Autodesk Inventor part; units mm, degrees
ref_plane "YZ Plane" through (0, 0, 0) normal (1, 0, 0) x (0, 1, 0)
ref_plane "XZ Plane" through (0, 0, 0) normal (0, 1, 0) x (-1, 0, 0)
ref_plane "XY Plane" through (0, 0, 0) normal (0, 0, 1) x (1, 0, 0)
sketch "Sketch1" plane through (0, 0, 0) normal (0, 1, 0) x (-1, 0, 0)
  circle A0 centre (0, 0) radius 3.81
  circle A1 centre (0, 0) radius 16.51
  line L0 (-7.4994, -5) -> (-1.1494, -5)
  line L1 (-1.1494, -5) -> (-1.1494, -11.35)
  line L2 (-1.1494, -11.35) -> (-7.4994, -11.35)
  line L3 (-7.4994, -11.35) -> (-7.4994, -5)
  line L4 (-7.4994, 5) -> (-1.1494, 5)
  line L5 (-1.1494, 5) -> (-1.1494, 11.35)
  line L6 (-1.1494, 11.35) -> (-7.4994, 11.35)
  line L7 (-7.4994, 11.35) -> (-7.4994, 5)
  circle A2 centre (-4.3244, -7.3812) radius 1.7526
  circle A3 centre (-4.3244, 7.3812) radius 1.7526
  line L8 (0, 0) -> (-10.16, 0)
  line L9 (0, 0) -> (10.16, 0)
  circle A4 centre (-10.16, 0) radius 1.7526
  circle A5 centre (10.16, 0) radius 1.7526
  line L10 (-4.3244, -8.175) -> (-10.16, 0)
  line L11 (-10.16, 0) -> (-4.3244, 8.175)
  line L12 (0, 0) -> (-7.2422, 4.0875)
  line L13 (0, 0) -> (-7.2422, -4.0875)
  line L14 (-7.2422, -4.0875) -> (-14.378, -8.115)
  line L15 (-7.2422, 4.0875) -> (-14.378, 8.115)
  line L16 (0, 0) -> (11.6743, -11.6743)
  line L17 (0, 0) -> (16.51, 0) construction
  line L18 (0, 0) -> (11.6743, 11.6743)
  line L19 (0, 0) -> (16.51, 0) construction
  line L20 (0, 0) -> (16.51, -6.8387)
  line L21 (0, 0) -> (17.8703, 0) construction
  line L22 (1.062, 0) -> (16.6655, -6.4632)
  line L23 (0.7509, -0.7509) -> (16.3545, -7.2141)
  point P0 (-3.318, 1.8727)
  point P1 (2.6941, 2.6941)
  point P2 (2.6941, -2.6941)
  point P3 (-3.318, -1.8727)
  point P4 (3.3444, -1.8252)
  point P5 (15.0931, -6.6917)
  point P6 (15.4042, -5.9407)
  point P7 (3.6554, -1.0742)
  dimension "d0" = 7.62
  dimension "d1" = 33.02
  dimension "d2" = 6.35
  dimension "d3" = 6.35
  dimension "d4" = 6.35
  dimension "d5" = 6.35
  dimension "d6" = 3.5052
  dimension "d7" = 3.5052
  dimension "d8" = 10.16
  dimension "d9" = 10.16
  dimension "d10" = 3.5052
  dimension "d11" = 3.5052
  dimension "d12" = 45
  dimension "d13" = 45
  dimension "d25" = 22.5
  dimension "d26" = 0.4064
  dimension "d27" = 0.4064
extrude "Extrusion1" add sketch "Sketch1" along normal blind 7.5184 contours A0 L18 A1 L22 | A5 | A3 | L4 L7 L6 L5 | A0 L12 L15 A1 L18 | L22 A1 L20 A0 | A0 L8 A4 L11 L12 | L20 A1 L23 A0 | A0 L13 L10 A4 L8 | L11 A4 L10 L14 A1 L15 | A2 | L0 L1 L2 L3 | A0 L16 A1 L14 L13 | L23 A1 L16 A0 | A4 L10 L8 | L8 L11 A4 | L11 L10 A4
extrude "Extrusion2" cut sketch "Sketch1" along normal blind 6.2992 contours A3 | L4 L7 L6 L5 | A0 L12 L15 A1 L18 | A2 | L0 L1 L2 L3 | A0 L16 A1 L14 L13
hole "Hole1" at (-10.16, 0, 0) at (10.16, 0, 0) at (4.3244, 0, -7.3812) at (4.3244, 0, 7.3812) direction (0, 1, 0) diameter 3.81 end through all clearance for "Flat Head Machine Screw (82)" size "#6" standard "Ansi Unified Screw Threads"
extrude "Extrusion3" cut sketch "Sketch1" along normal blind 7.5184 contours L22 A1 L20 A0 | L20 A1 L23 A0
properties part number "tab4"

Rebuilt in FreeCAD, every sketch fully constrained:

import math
import FreeCAD as App
import Part
import Sketcher
Q = App.Units.Quantity

doc = App.newDocument("Part")
params = doc.addObject("Spreadsheet::Sheet", "Params")
for row, (alias, value) in enumerate([
    ("sketch1_diameter", "1.3 in"),
    ("sketch1_diameter2", "0.3 in"),
    ("pad1_length", "0.296 in"),
    ("sketch2_radius", "0.15 in"),
    ("sketch2_radius2", "0.65 in"),
    ("pocket1_length", "0.248 in"),
    ("sketch3_diameter", "0.15 in"),
    ("hole_diameter", "0.15 in"),
    ("sketch4_radius", "0.15 in"),
    ("sketch4_radius2", "0.65 in"),
    ("pocket2_length", "0.296 in"),
], start=1):
    params.set(f"A{row}", alias)
    params.set(f"B{row}", "=" + value)
    params.setAlias(f"B{row}", alias)

body = doc.addObject("PartDesign::Body", "Body")

# Sketch on XZ plane
sketch1 = body.newObject("Sketcher::SketchObject", "Sketch")
sketch1.AttachmentSupport = (doc.getObject("XZ_Plane"), [""])
sketch1.MapMode = "FlatFace"
sketch1.addGeometry([
    Part.Circle(App.Vector(0, 0, 0), App.Vector(0, 0, 1), 16.51),
    Part.Circle(App.Vector(0, 0, 0), App.Vector(0, 0, 1), 3.81),
], False)
sketch1.addConstraint([
    Sketcher.Constraint("Coincident", 0, 3, -1, 1),
    Sketcher.Constraint("Coincident", 1, 3, -1, 1),
    Sketcher.Constraint("Diameter", 0, Q("1.3 in")),
    Sketcher.Constraint("Diameter", 1, Q("0.3 in")),
])
sketch1.setExpression("Constraints[2]", "Params.sketch1_diameter")
sketch1.setExpression("Constraints[3]", "Params.sketch1_diameter2")
pad1 = body.newObject("PartDesign::Pad", "Pad")
pad1.Profile = sketch1
pad1.setExpression("Length", "Params.pad1_length")
pad1.Reversed = True

# Sketch on XZ plane
sketch2 = body.newObject("Sketcher::SketchObject", "Sketch001")
sketch2.AttachmentSupport = (doc.getObject("XZ_Plane"), [""])
sketch2.MapMode = "FlatFace"
sketch2.addGeometry([
    Part.ArcOfCircle(Part.Circle(App.Vector(0, 0, 0), App.Vector(0, 0, 1), 3.81), math.radians(29.440397), math.radians(135)),  # 0
    Part.LineSegment(App.Vector(-2.694077, 2.694077, 0), App.Vector(-11.6743, 11.6743, 0)),  # 1
    Part.ArcOfCircle(Part.Circle(App.Vector(0, 0, 0), App.Vector(0, 0, 1), 16.51), math.radians(29.440554), math.radians(135)),  # 2
    Part.LineSegment(App.Vector(14.378, 8.115, 0), App.Vector(7.2422, 4.0875, 0)),  # 3
    Part.LineSegment(App.Vector(7.2422, 4.0875, 0), App.Vector(3.318005, 1.872683, 0)),  # 4
    Part.ArcOfCircle(Part.Circle(App.Vector(0, 0, 0), App.Vector(0, 0, 1), 3.81), math.radians(-135), math.radians(-29.440397)),  # 5
    Part.LineSegment(App.Vector(3.318005, -1.872683, 0), App.Vector(7.2422, -4.0875, 0)),  # 6
    Part.LineSegment(App.Vector(7.2422, -4.0875, 0), App.Vector(14.378, -8.115, 0)),  # 7
    Part.ArcOfCircle(Part.Circle(App.Vector(0, 0, 0), App.Vector(0, 0, 1), 16.51), math.radians(-135), math.radians(-29.440554)),  # 8
    Part.LineSegment(App.Vector(-11.6743, -11.6743, 0), App.Vector(-2.694077, -2.694077, 0)),  # 9
], False)
sketch2.addConstraint([
    Sketcher.Constraint("Coincident", 0, 2, 1, 1),
    Sketcher.Constraint("Coincident", 1, 2, 2, 2),
    Sketcher.Constraint("Coincident", 2, 1, 3, 1),
    Sketcher.Constraint("Coincident", 3, 2, 4, 1),
    Sketcher.Constraint("Coincident", 4, 2, 0, 1),
    Sketcher.Constraint("Coincident", 5, 2, 6, 1),
    Sketcher.Constraint("Coincident", 6, 2, 7, 1),
    Sketcher.Constraint("Coincident", 7, 2, 8, 2),
    Sketcher.Constraint("Coincident", 8, 1, 9, 1),
    Sketcher.Constraint("Coincident", 9, 2, 5, 1),
    Sketcher.Constraint("Coincident", 0, 3, -1, 1),
    Sketcher.Constraint("Coincident", 2, 3, -1, 1),
    Sketcher.Constraint("Coincident", 5, 3, -1, 1),
    Sketcher.Constraint("Coincident", 8, 3, -1, 1),
    Sketcher.Constraint("Equal", 0, 5),
    Sketcher.Constraint("Equal", 2, 8),
    Sketcher.Constraint("Symmetric", 3, 2, 6, 2, -1),
    Sketcher.Constraint("Parallel", 3, 4),
    Sketcher.Constraint("Parallel", 6, 7),
    Sketcher.Constraint("Perpendicular", 1, 9),
    Sketcher.Constraint("Vertical", 4, 2, 5, 2),
    Sketcher.Constraint("Vertical", 1, 2, 8, 1),
    Sketcher.Constraint("Vertical", 0, 2, 9, 2),
    Sketcher.Constraint("Radius", 0, Q("0.15 in")),
    Sketcher.Constraint("Radius", 2, Q("0.65 in")),
    Sketcher.Constraint("Angle", 3, Q("-150.5593 deg")),
    Sketcher.Constraint("Distance", 3, Q("0.3226 in")),
    Sketcher.Constraint("DistanceY", -1, 1, 2, 1, Q("0.3195 in")),
    Sketcher.Constraint("DistanceX", 0, 2, -1, 1, Q("2.694 mm")),
])
sketch2.setExpression("Constraints[23]", "Params.sketch2_radius")
sketch2.setExpression("Constraints[24]", "Params.sketch2_radius2")
pocket1 = body.newObject("PartDesign::Pocket", "Pocket")
pocket1.Profile = sketch2
pocket1.setExpression("Length", "Params.pocket1_length")

# Sketch on XZ plane
sketch3 = body.newObject("Sketcher::SketchObject", "Sketch002")
sketch3.AttachmentSupport = (doc.getObject("XZ_Plane"), [""])
sketch3.MapMode = "FlatFace"
sketch3.addGeometry([
    Part.Circle(App.Vector(-10.16, 0, 0), App.Vector(0, 0, 1), 1.905),
    Part.Circle(App.Vector(10.16, 0, 0), App.Vector(0, 0, 1), 1.905),
    Part.Circle(App.Vector(4.3244, -7.3812, 0), App.Vector(0, 0, 1), 1.905),
    Part.Circle(App.Vector(4.3244, 7.3812, 0), App.Vector(0, 0, 1), 1.905),
], False)
sketch3.addConstraint([
    Sketcher.Constraint("Equal", 0, 1),
    Sketcher.Constraint("Equal", 1, 2),
    Sketcher.Constraint("Equal", 2, 3),
    Sketcher.Constraint("Symmetric", 0, 3, 1, 3, -1, 1),
    Sketcher.Constraint("Symmetric", 2, 3, 3, 3, -1),
    Sketcher.Constraint("PointOnObject", 0, 3, -1),
    Sketcher.Constraint("Diameter", 0, Q("0.15 in")),
    Sketcher.Constraint("DistanceX", 0, 3, -1, 1, Q("0.4 in")),
    Sketcher.Constraint("DistanceY", 2, 3, -1, 1, Q("0.2906 in")),
    Sketcher.Constraint("DistanceX", -1, 1, 2, 3, Q("4.3244 mm")),
])
sketch3.setExpression("Constraints[6]", "Params.sketch3_diameter")
doc.recompute()
hole = body.newObject("PartDesign::Hole", "Hole")
hole.Profile = sketch3
hole.ThreadType = "None"
hole.setExpression("Diameter", "Params.hole_diameter")
hole.DepthType = "ThroughAll"

# Sketch on XZ plane
sketch4 = body.newObject("Sketcher::SketchObject", "Sketch003")
sketch4.AttachmentSupport = (doc.getObject("XZ_Plane"), [""])
sketch4.MapMode = "FlatFace"
sketch4.addGeometry([
    Part.LineSegment(App.Vector(-15.40415, -5.94073, 0), App.Vector(-3.655423, -1.074234, 0)),
    Part.ArcOfCircle(Part.Circle(App.Vector(0, 0, 0), App.Vector(0, 0, 1), 3.81), math.radians(-163.623304), math.radians(-151.377094)),
    Part.LineSegment(App.Vector(-3.344386, -1.825153, 0), App.Vector(-15.093121, -6.691622, 0)),
    Part.ArcOfCircle(Part.Circle(App.Vector(0, 0, 0), App.Vector(0, 0, 1), 16.51), math.radians(-158.910479), math.radians(-156.089622)),
], False)
sketch4.addConstraint([
    Sketcher.Constraint("Coincident", 0, 2, 1, 1),
    Sketcher.Constraint("Coincident", 1, 2, 2, 1),
    Sketcher.Constraint("Coincident", 2, 2, 3, 2),
    Sketcher.Constraint("Coincident", 3, 1, 0, 1),
    Sketcher.Constraint("Coincident", 1, 3, -1, 1),
    Sketcher.Constraint("Coincident", 3, 3, -1, 1),
    Sketcher.Constraint("Parallel", 0, 2),
    Sketcher.Constraint("Equal", 0, 2),
    Sketcher.Constraint("Radius", 1, Q("0.15 in")),
    Sketcher.Constraint("Radius", 3, Q("0.65 in")),
    Sketcher.Constraint("Angle", 0, Q("22.5 deg")),
    Sketcher.Constraint("DistanceY", 0, 2, -1, 1, Q("0.0423 in")),
])
sketch4.setExpression("Constraints[8]", "Params.sketch4_radius")
sketch4.setExpression("Constraints[9]", "Params.sketch4_radius2")
pocket2 = body.newObject("PartDesign::Pocket", "Pocket001")
pocket2.Profile = sketch4
pocket2.setExpression("Length", "Params.pocket2_length")

doc.recompute()
